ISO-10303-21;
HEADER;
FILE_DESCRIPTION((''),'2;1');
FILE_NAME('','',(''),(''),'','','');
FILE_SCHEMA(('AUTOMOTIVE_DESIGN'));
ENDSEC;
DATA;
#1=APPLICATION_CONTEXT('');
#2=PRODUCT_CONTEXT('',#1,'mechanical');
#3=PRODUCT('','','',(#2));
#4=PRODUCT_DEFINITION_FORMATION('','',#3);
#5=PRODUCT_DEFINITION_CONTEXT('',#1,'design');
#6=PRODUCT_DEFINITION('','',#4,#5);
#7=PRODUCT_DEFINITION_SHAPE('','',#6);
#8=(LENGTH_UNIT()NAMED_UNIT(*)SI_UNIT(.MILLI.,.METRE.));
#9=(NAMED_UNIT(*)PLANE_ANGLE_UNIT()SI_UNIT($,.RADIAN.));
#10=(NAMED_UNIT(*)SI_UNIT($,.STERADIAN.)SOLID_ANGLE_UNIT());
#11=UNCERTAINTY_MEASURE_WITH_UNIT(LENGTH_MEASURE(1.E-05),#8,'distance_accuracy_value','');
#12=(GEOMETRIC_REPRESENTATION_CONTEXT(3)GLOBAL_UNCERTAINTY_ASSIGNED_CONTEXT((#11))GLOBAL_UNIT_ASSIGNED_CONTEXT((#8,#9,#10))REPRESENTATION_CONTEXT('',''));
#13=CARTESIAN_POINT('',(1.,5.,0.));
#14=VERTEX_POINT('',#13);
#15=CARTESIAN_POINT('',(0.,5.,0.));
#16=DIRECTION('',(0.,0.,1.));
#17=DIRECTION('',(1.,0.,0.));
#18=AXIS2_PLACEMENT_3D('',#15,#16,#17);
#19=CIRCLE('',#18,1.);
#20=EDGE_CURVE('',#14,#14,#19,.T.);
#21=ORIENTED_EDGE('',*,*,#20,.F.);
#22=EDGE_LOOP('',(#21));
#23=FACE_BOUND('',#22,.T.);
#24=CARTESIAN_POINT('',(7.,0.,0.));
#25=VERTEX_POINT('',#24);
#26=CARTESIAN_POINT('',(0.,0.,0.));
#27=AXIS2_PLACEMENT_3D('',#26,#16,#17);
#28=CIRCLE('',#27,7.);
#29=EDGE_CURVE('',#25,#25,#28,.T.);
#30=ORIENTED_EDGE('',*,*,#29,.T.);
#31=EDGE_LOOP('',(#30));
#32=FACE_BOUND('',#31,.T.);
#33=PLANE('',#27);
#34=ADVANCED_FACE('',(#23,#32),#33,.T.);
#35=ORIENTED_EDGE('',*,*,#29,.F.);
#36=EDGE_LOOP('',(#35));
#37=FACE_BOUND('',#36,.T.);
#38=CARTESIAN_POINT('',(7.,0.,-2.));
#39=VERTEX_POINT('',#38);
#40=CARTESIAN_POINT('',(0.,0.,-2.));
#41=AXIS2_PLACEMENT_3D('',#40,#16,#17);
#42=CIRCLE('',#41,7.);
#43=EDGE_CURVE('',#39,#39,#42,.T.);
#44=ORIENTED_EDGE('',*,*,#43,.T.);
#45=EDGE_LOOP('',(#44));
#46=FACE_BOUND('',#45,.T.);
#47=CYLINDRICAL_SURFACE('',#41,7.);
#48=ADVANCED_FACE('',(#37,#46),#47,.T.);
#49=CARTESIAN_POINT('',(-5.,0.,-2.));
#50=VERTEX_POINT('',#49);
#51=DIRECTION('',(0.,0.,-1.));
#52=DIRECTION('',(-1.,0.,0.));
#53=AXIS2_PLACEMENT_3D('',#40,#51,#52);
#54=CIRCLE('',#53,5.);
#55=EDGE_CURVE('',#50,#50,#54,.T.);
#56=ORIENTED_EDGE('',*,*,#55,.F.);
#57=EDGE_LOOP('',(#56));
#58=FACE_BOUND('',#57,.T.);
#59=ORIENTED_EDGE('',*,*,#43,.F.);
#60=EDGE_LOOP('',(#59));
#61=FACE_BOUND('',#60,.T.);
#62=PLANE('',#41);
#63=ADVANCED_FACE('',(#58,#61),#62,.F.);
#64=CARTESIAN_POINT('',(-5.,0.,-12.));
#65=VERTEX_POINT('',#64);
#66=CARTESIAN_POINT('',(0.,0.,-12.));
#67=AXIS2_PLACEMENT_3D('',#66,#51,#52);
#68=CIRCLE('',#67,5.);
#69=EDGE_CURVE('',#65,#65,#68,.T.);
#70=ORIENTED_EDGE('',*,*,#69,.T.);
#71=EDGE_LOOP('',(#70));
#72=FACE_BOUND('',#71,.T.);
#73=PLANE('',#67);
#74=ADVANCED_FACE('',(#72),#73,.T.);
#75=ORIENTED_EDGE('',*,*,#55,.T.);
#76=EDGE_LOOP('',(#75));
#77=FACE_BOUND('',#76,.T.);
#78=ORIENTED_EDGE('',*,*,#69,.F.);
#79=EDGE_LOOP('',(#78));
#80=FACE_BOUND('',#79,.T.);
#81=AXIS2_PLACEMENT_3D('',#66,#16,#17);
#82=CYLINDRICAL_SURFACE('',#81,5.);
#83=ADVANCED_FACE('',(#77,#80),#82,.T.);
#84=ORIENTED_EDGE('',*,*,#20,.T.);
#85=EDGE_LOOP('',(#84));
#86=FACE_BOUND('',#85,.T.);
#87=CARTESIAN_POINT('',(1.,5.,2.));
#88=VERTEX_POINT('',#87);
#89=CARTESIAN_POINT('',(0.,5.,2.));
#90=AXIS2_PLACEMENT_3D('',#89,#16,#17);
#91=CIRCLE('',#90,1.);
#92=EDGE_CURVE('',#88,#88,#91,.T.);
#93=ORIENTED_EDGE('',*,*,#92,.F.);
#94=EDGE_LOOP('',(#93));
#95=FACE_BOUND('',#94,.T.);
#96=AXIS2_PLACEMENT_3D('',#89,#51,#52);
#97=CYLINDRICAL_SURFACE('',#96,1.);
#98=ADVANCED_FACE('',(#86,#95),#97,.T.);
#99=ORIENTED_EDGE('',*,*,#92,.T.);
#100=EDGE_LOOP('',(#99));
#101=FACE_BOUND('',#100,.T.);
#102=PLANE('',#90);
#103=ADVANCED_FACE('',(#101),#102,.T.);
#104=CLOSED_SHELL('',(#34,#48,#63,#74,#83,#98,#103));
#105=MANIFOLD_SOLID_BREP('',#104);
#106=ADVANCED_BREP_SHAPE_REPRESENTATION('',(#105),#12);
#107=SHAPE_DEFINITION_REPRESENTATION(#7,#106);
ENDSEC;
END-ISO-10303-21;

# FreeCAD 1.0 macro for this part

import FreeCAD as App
import Part
import Sketcher

doc = App.newDocument("Part")
params = doc.addObject("Spreadsheet::Sheet", "Params")
for row, (alias, value) in enumerate([
    ("sketch1_diameter", "14 mm"),
    ("pad1_length", "2 mm"),
    ("sketch2_diameter", "2 mm"),
    ("pad2_length", "2 mm"),
    ("sketch3_diameter", "10 mm"),
    ("pad3_length", "10 mm"),
], start=1):
    params.set(f"A{row}", alias)
    params.set(f"B{row}", "=" + value)
    params.setAlias(f"B{row}", alias)

body = doc.addObject("PartDesign::Body", "Body")

# Sketch on XY plane
sketch1 = body.newObject("Sketcher::SketchObject", "Sketch")
sketch1.AttachmentSupport = (doc.getObject("XY_Plane"), [""])
sketch1.MapMode = "FlatFace"
sketch1.addGeometry(Part.Circle(App.Vector(0, 0, 0), App.Vector(0, 0, 1), 7), False)
sketch1.addConstraint([
    Sketcher.Constraint("Coincident", 0, 3, -1, 1),
    Sketcher.Constraint("Diameter", 0, 14.0),
])
sketch1.setExpression("Constraints[1]", "Params.sketch1_diameter")
pad1 = body.newObject("PartDesign::Pad", "Pad")
pad1.Profile = sketch1
pad1.setExpression("Length", "Params.pad1_length")
pad1.Reversed = True

# Sketch on XY plane
sketch2 = body.newObject("Sketcher::SketchObject", "Sketch001")
sketch2.AttachmentSupport = (doc.getObject("XY_Plane"), [""])
sketch2.MapMode = "FlatFace"
sketch2.addGeometry(Part.Circle(App.Vector(0, 5, 0), App.Vector(0, 0, 1), 1), False)
sketch2.addConstraint([
    Sketcher.Constraint("PointOnObject", 0, 3, -2),
    Sketcher.Constraint("Diameter", 0, 2.0),
    Sketcher.Constraint("DistanceY", -1, 1, 0, 3, 5.0),
])
sketch2.setExpression("Constraints[1]", "Params.sketch2_diameter")
pad2 = body.newObject("PartDesign::Pad", "Pad001")
pad2.Profile = sketch2
pad2.setExpression("Length", "Params.pad2_length")

# Sketch on XY plane
sketch3 = body.newObject("Sketcher::SketchObject", "Sketch002")
sketch3.AttachmentSupport = (doc.getObject("XY_Plane"), [""])
sketch3.MapMode = "FlatFace"
sketch3.AttachmentOffset = App.Placement(App.Vector(0, 0, -2), App.Rotation())
sketch3.addGeometry(Part.Circle(App.Vector(0, 0, 0), App.Vector(0, 0, 1), 5), False)
sketch3.addConstraint([
    Sketcher.Constraint("Coincident", 0, 3, -1, 1),
    Sketcher.Constraint("Diameter", 0, 10.0),
])
sketch3.setExpression("Constraints[1]", "Params.sketch3_diameter")
pad3 = body.newObject("PartDesign::Pad", "Pad002")
pad3.Profile = sketch3
pad3.setExpression("Length", "Params.pad3_length")
pad3.Reversed = True

doc.recompute()
